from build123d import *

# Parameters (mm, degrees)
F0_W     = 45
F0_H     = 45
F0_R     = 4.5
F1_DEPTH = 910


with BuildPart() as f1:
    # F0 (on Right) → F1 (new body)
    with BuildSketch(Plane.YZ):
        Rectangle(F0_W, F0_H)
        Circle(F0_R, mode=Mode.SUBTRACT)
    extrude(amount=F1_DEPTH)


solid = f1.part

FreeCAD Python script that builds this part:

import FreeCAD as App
import Part
import Sketcher
from FreeCAD import Vector
Q = App.Units.Quantity


def add_polygon(sketch, points):
    """Adds a closed chain of lines whose ends are joined by coincident constraints."""
    first, n = sketch.GeometryCount, len(points)
    for a, b in zip(points, points[1:] + points[:1]):
        sketch.addGeometry(Part.LineSegment(App.Vector(*a, 0), App.Vector(*b, 0)), False)
    for i in range(n):
        sketch.addConstraint(Sketcher.Constraint("Coincident", first + i, 2, first + (i + 1) % n, 1))

doc = App.newDocument("Part")
body = doc.addObject("PartDesign::Body", "Body")

sketch1 = body.newObject("Sketcher::SketchObject", "Sketch")
sketch1.AttachmentSupport = (doc.getObject("YZ_Plane"), [""])
sketch1.MapMode = "FlatFace"
add_polygon(sketch1, [(-22.5, 22.5), (-22.5, -22.5), (22.5, -22.5), (22.5, 22.5)])
sketch1.addGeometry(Part.Circle(Vector(0, 0, 0), Vector(0, 0, 1), 4.5), False)
sketch1.addConstraint(Sketcher.Constraint("Vertical", 0))
sketch1.addConstraint(Sketcher.Constraint("Horizontal", 1))
sketch1.addConstraint(Sketcher.Constraint("Vertical", 2))
sketch1.addConstraint(Sketcher.Constraint("Horizontal", 3))
sketch1.addConstraint(Sketcher.Constraint("Coincident", 4, 3, -1, 1))
sketch1.addConstraint(Sketcher.Constraint("Symmetric", 0, 2, 2, 2, -1, 1))
sketch1.addConstraint(Sketcher.Constraint("Equal", 3, 0))
sketch1.addConstraint(Sketcher.Constraint("Diameter", 4, Q("9 mm")))
sketch1.addConstraint(Sketcher.Constraint("DistanceX", 1, 1, 1, 2, Q("45 mm")))
pad1 = body.newObject("PartDesign::Pad", "Pad")
pad1.Profile = sketch1
pad1.Length = 910

doc.recompute()
